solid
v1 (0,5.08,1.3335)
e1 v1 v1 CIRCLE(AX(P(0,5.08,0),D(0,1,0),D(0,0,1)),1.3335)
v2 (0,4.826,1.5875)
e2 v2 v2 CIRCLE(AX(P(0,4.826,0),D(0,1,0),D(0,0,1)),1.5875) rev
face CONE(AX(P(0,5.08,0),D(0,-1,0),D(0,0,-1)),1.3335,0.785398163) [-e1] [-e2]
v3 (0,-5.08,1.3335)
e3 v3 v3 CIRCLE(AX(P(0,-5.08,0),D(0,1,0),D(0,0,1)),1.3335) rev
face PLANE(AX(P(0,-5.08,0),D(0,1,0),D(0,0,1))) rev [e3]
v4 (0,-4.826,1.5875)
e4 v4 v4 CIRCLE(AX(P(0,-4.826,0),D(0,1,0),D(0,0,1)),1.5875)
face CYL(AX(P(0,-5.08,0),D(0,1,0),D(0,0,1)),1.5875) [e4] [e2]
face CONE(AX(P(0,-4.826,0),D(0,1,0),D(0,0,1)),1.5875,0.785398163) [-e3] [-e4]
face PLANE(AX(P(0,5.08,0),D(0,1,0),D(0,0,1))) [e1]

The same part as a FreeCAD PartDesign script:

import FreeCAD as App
import Part
import Sketcher

V = App.Vector
Q = App.Units.Quantity


def edges_at(feature, points):
    """Names of the edges that pass closest to the given points."""
    edges = feature.Shape.Edges
    near = lambda p: min(range(len(edges)), key=lambda i: edges[i].distToShape(Part.Vertex(*p))[0])
    return sorted({f"Edge{near(p) + 1}" for p in points})

doc = App.newDocument("Part")
body = doc.addObject("PartDesign::Body", "Body")

sketch1 = doc.addObject("Sketcher::SketchObject", "Sketch")
body.addObject(sketch1)
sketch1.AttachmentSupport = (doc.XZ_Plane, [""])
sketch1.MapMode = "FlatFace"
sketch1.addGeometry(Part.Circle(V(0, 0, 0), V(0, 0, 1), 1.6), False)
sketch1.addConstraint([
    Sketcher.Constraint("Coincident", 0, 3, -1, 1),
    Sketcher.Constraint("Diameter", 0, Q("0.125 in")),
])
pad1 = doc.addObject("PartDesign::Pad", "Pad")
body.addObject(pad1)
pad1.Profile = sketch1
pad1.Type = "TwoLengths"
pad1.Length = Q("0.2 in")
pad1.Length2 = Q("0.2 in")
pad1.Reversed = True
doc.recompute()

chamfer = doc.addObject("PartDesign::Chamfer", "Chamfer")
body.addObject(chamfer)
chamfer.Base = (pad1, edges_at(pad1, [(0, -5.08, -1.587), (0, 5.08, -1.587)]))
chamfer.Size = Q("0.01 in")

doc.recompute()
